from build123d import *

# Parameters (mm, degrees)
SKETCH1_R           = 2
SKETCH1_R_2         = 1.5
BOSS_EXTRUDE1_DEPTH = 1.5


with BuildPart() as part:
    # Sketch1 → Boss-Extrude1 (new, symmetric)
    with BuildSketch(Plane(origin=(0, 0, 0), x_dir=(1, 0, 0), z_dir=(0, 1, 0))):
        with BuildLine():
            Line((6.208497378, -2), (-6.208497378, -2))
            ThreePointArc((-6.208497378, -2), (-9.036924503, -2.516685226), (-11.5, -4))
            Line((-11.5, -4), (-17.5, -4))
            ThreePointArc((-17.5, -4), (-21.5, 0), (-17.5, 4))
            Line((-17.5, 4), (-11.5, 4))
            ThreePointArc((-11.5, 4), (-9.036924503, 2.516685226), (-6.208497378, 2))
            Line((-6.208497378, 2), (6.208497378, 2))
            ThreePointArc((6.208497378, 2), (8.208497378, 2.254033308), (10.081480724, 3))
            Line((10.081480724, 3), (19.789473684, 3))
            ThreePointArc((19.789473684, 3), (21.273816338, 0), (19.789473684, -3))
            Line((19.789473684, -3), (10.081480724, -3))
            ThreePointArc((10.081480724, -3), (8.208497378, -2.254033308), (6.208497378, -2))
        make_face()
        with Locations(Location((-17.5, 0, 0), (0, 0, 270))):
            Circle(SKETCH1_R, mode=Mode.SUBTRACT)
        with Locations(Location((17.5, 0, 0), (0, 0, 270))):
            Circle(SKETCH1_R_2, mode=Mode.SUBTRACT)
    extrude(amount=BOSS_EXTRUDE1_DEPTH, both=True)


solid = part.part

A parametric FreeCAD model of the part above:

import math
import FreeCAD as App
import Part
import Sketcher
from FreeCAD import Vector

doc = App.newDocument("Part")
body = doc.addObject("PartDesign::Body", "Body")

# Sketch on XZ plane
sketch1 = body.newObject("Sketcher::SketchObject", "Sketch")
sketch1.AttachmentSupport = (doc.getObject("XZ_Plane"), [""])
sketch1.MapMode = "FlatFace"
sketch1.addGeometry(Part.LineSegment(Vector(-6.2, 2, 0), Vector(6.2, 2, 0)), False)
sketch1.addGeometry(Part.ArcOfCircle(Part.Circle(Vector(6.2, 10, 0), Vector(0, 0, 1), 8), math.radians(-90), math.radians(-61)), False)
sketch1.addGeometry(Part.LineSegment(Vector(10.1, 3, 0), Vector(19.8, 3, 0)), False)
sketch1.addGeometry(Part.ArcOfCircle(Part.Circle(Vector(17.5, 0, 0), Vector(0, 0, 1), 3.8), math.radians(-53), math.radians(53)), False)
sketch1.addGeometry(Part.LineSegment(Vector(19.8, -3, 0), Vector(10.1, -3, 0)), False)
sketch1.addGeometry(Part.ArcOfCircle(Part.Circle(Vector(6.2, -10, 0), Vector(0, 0, 1), 8), math.radians(61), math.radians(90)), False)
sketch1.addGeometry(Part.LineSegment(Vector(6.2, -2, 0), Vector(-6.2, -2, 0)), False)
sketch1.addGeometry(Part.ArcOfCircle(Part.Circle(Vector(-6.2, -10, 0), Vector(0, 0, 1), 8), math.radians(90), math.radians(131)), False)
sketch1.addGeometry(Part.LineSegment(Vector(-11.5, -4, 0), Vector(-17.5, -4, 0)), False)
sketch1.addGeometry(Part.ArcOfCircle(Part.Circle(Vector(-17.5, 0, 0), Vector(0, 0, 1), 4), math.radians(90), math.radians(270)), False)
sketch1.addGeometry(Part.LineSegment(Vector(-17.5, 4, 0), Vector(-11.5, 4, 0)), False)
sketch1.addGeometry(Part.ArcOfCircle(Part.Circle(Vector(-6.2, 10, 0), Vector(0, 0, 1), 8), math.radians(-131), math.radians(-90)), False)
sketch1.addGeometry(Part.Circle(Vector(17.5, 0, 0), Vector(0, 0, 1), 1.5), False)
sketch1.addGeometry(Part.Circle(Vector(-17.5, 0, 0), Vector(0, 0, 1), 2), False)
sketch1.addConstraint(Sketcher.Constraint("Tangent", 0, 2, 1, 1))
sketch1.addConstraint(Sketcher.Constraint("Coincident", 1, 2, 2, 1))
sketch1.addConstraint(Sketcher.Constraint("Coincident", 2, 2, 3, 2))
sketch1.addConstraint(Sketcher.Constraint("Coincident", 3, 1, 4, 1))
sketch1.addConstraint(Sketcher.Constraint("Coincident", 4, 2, 5, 1))
sketch1.addConstraint(Sketcher.Constraint("Tangent", 5, 2, 6, 1))
sketch1.addConstraint(Sketcher.Constraint("Tangent", 6, 2, 7, 1))
sketch1.addConstraint(Sketcher.Constraint("Coincident", 7, 2, 8, 1))
sketch1.addConstraint(Sketcher.Constraint("Tangent", 8, 2, 9, 2))
sketch1.addConstraint(Sketcher.Constraint("Tangent", 9, 1, 10, 1))
sketch1.addConstraint(Sketcher.Constraint("Coincident", 10, 2, 11, 1))
sketch1.addConstraint(Sketcher.Constraint("Tangent", 11, 2, 0, 1))
sketch1.addConstraint(Sketcher.Constraint("Horizontal", 0))
sketch1.addConstraint(Sketcher.Constraint("Horizontal", 2))
sketch1.addConstraint(Sketcher.Constraint("Horizontal", 4))
sketch1.addConstraint(Sketcher.Constraint("Horizontal", 6))
sketch1.addConstraint(Sketcher.Constraint("Horizontal", 8))
sketch1.addConstraint(Sketcher.Constraint("Horizontal", 10))
sketch1.addConstraint(Sketcher.Constraint("Coincident", 12, 3, 3, 3))
sketch1.addConstraint(Sketcher.Constraint("Coincident", 13, 3, 9, 3))
sketch1.addConstraint(Sketcher.Constraint("Equal", 1, 5))
sketch1.addConstraint(Sketcher.Constraint("Equal", 5, 7))
sketch1.addConstraint(Sketcher.Constraint("Equal", 7, 11))
sketch1.addConstraint(Sketcher.Constraint("Symmetric", 1, 3, 7, 3, -1, 1))
sketch1.addConstraint(Sketcher.Constraint("Symmetric", 3, 3, 9, 3, -1, 1))
sketch1.addConstraint(Sketcher.Constraint("Symmetric", 2, 2, 3, 1, -1))
sketch1.addConstraint(Sketcher.Constraint("Vertical", 1, 3, 5, 3))
sketch1.addConstraint(Sketcher.Constraint("Vertical", 7, 3, 11, 3))
sketch1.addConstraint(Sketcher.Constraint("Diameter", 12, 3.0))
sketch1.addConstraint(Sketcher.Constraint("Diameter", 13, 4.0))
sketch1.addConstraint(Sketcher.Constraint("Radius", 1, 8.0))
sketch1.addConstraint(Sketcher.Constraint("Radius", 9, 4.0))
sketch1.addConstraint(Sketcher.Constraint("DistanceX", 8, 2, 8, 1, 6.0))
sketch1.addConstraint(Sketcher.Constraint("DistanceY", -1, 1, 1, 3, 10.0))
sketch1.addConstraint(Sketcher.Constraint("DistanceY", -1, 1, 1, 2, 3.0))
sketch1.addConstraint(Sketcher.Constraint("DistanceX", 9, 3, 3, 3, 35.0))
sketch1.addConstraint(Sketcher.Constraint("Radius", 3, 3.773816))
pad1 = body.newObject("PartDesign::Pad", "Pad")
pad1.Profile = sketch1
pad1.Length = 3
pad1.Midplane = True

doc.recompute()
